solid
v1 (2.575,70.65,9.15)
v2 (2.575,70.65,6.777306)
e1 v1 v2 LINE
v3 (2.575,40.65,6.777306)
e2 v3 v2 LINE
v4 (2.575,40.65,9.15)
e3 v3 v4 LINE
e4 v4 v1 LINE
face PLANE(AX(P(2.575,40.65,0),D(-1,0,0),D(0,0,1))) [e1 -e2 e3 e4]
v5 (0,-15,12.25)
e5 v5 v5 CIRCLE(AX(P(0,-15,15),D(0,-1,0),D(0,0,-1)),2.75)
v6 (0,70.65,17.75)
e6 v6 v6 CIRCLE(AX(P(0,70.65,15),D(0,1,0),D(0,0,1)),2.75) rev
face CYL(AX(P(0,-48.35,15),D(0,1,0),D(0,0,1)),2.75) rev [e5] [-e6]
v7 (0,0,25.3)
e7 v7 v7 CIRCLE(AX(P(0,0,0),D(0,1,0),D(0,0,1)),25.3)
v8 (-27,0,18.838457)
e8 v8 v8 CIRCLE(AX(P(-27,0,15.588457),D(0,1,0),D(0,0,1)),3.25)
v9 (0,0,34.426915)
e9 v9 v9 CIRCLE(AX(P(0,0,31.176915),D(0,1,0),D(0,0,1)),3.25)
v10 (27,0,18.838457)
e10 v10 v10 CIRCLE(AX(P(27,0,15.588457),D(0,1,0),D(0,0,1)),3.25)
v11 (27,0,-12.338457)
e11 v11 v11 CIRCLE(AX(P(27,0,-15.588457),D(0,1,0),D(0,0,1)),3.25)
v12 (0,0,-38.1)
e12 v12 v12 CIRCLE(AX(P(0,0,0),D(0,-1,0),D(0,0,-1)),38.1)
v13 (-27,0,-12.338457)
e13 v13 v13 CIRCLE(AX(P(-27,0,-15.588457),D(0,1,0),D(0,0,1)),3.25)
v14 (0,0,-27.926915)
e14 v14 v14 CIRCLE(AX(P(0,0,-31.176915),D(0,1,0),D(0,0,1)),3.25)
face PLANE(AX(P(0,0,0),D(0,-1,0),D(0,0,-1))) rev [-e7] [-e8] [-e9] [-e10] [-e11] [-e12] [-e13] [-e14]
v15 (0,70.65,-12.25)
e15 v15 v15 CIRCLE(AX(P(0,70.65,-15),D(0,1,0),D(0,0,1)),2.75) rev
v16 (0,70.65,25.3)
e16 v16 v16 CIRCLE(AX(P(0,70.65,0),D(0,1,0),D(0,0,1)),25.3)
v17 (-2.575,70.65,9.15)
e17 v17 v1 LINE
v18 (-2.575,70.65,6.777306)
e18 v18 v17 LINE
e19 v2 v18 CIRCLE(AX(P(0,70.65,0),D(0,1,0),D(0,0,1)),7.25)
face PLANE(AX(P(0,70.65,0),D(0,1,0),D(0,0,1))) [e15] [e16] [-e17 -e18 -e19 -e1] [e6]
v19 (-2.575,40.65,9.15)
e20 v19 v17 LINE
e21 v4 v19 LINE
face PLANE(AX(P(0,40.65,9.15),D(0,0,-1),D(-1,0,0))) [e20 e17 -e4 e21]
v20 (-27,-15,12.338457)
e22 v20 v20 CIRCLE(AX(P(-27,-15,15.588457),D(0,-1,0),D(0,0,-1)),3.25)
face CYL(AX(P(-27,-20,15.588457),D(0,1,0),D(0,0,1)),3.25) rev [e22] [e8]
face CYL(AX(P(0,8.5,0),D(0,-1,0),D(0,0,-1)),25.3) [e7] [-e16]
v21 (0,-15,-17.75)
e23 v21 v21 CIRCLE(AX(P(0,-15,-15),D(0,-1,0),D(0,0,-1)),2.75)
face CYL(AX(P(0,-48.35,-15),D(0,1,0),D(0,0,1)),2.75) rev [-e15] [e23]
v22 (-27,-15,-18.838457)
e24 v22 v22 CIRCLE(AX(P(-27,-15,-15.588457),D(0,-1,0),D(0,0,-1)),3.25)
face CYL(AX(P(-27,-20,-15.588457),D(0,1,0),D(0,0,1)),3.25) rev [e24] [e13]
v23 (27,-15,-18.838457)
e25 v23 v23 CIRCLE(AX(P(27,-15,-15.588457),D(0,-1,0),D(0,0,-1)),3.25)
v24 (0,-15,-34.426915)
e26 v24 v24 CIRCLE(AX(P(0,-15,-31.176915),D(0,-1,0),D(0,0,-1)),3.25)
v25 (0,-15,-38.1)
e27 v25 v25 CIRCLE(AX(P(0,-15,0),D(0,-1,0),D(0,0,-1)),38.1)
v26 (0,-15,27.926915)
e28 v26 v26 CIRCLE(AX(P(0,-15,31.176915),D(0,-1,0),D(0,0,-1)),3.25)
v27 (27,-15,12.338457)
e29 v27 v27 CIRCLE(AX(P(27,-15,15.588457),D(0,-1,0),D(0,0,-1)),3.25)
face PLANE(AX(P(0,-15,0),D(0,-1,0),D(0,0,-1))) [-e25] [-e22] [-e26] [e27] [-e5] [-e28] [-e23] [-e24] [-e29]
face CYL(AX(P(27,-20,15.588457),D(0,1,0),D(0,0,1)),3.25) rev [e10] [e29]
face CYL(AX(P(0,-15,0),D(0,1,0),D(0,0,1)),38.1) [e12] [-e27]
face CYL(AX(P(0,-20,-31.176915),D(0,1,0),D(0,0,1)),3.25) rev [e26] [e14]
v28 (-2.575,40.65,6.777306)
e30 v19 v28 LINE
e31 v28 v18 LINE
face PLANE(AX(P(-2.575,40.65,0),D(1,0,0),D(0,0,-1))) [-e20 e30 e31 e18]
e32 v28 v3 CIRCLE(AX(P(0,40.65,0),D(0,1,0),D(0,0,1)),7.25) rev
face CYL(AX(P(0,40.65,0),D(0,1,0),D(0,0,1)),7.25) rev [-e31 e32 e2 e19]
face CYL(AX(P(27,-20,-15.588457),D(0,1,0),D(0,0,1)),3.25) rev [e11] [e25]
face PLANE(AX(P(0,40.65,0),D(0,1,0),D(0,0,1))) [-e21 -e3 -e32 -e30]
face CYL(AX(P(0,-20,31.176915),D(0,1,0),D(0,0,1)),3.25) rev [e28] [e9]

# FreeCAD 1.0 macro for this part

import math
import FreeCAD as App
import Part
import Sketcher
from FreeCAD import Vector

doc = App.newDocument("Part")
params = doc.addObject("Spreadsheet::Sheet", "Params")
for row, (alias, value) in enumerate([
    ("sketch1_diameter", "50.6 mm"),
    ("pad1_length", "8.5 mm"),
    ("sketch2_diameter", "50.6 mm"),
    ("pad2_length", "57.15 mm"),
    ("sketch3_diameter", "50.6 mm"),
    ("pad3_length", "15 mm"),
    ("sketch4_radius", "7.25 mm"),
    ("sketch4_width", "5.15 mm"),
    ("pocket1_length", "115 mm"),
    ("sketch5_diameter", "76.2 mm"),
    ("pad4_length", "15 mm"),
    ("sketch6_radius", "3.25 mm"),
    ("pocket2_length", "20 mm"),
    ("sketch7_diameter", "5.5 mm"),
    ("pocket3_length", "129 mm"),
    ("sketch8_radius", "7.25 mm"),
    ("sketch8_width", "5.15 mm"),
    ("pad5_length", "93 mm"),
    ("sketch9_radius", "7.25 mm"),
    ("sketch9_width", "5.15 mm"),
    ("pocket4_length", "40 mm"),
    ("sketch10_diameter", "50.6 mm"),
    ("pocket5_length", "10 mm"),
], start=1):
    params.set(f"A{row}", alias)
    params.set(f"B{row}", "=" + value)
    params.setAlias(f"B{row}", alias)

body = doc.addObject("PartDesign::Body", "Body")

# Sketch on XZ plane
sketch1 = doc.addObject("Sketcher::SketchObject", "Sketch")
body.addObject(sketch1)
sketch1.AttachmentSupport = (doc.XZ_Plane, [""])
sketch1.MapMode = "FlatFace"
sketch1.addGeometry(Part.Circle(Vector(0, 0, 0), Vector(0, 0, 1), 25), False)
sketch1.addConstraint([
    Sketcher.Constraint("Coincident", 0, 3, -1, 1),
    Sketcher.Constraint("Diameter", 0, 50.6),
])
sketch1.setExpression("Constraints[1]", "Params.sketch1_diameter")
pad1 = doc.addObject("PartDesign::Pad", "Pad")
body.addObject(pad1)
pad1.Profile = sketch1
pad1.setExpression("Length", "Params.pad1_length")
pad1.Reversed = True

# Sketch on XZ plane
sketch2 = doc.addObject("Sketcher::SketchObject", "Sketch001")
body.addObject(sketch2)
sketch2.AttachmentSupport = (doc.XZ_Plane, [""])
sketch2.MapMode = "FlatFace"
sketch2.AttachmentOffset = App.Placement(Vector(0, 0, -8.5), App.Rotation())
sketch2.addGeometry(Part.Circle(Vector(0, 0, 0), Vector(0, 0, 1), 25), False)
sketch2.addConstraint([
    Sketcher.Constraint("Coincident", 0, 3, -1, 1),
    Sketcher.Constraint("Diameter", 0, 50.6),
])
sketch2.setExpression("Constraints[1]", "Params.sketch2_diameter")
pad2 = doc.addObject("PartDesign::Pad", "Pad001")
body.addObject(pad2)
pad2.Profile = sketch2
pad2.setExpression("Length", "Params.pad2_length")
pad2.Reversed = True

# Sketch on XZ plane
sketch3 = doc.addObject("Sketcher::SketchObject", "Sketch002")
body.addObject(sketch3)
sketch3.AttachmentSupport = (doc.XZ_Plane, [""])
sketch3.MapMode = "FlatFace"
sketch3.AttachmentOffset = App.Placement(Vector(0, 0, -65.65), App.Rotation())
sketch3.addGeometry(Part.Circle(Vector(0, 0, 0), Vector(0, 0, 1), 25), False)
sketch3.addConstraint([
    Sketcher.Constraint("Coincident", 0, 3, -1, 1),
    Sketcher.Constraint("Diameter", 0, 50.6),
])
sketch3.setExpression("Constraints[1]", "Params.sketch3_diameter")
pad3 = doc.addObject("PartDesign::Pad", "Pad002")
body.addObject(pad3)
pad3.Profile = sketch3
pad3.setExpression("Length", "Params.pad3_length")
pad3.Reversed = True

# Sketch on XZ plane
sketch4 = doc.addObject("Sketcher::SketchObject", "Sketch003")
body.addObject(sketch4)
sketch4.AttachmentSupport = (doc.XZ_Plane, [""])
sketch4.MapMode = "FlatFace"
sketch4.addGeometry([
    Part.ArcOfCircle(Part.Circle(Vector(0, 0, 0), Vector(0, 0, 1), 7.2), math.radians(111), math.radians(360)),  # 0
    Part.ArcOfCircle(Part.Circle(Vector(0, 0, 0), Vector(0, 0, 1), 7.3), math.radians(0), math.radians(69)),  # 1
    Part.LineSegment(Vector(2.6, 6.8, 0), Vector(2.6, 9.2, 0)),  # 2
    Part.LineSegment(Vector(2.6, 9.2, 0), Vector(-2.6, 9.2, 0)),  # 3
    Part.LineSegment(Vector(-2.6, 9.2, 0), Vector(-2.6, 6.8, 0)),  # 4
], False)
sketch4.addConstraint([
    Sketcher.Constraint("Tangent", 0, 2, 1, 1),
    Sketcher.Constraint("Coincident", 1, 2, 2, 1),
    Sketcher.Constraint("Coincident", 2, 2, 3, 1),
    Sketcher.Constraint("Coincident", 3, 2, 4, 1),
    Sketcher.Constraint("Coincident", 4, 2, 0, 1),
    Sketcher.Constraint("Vertical", 2),
    Sketcher.Constraint("Horizontal", 3),
    Sketcher.Constraint("Vertical", 4),
    Sketcher.Constraint("Coincident", 0, 3, -1, 1),
    Sketcher.Constraint("Equal", 0, 1),
    Sketcher.Constraint("PointOnObject", 0, 2, -1),
    Sketcher.Constraint("Horizontal", 1, 2, 4, 2),
    Sketcher.Constraint("Radius", 0, 7.25),
    Sketcher.Constraint("DistanceX", 3, 2, 3, 1, 5.15),
    Sketcher.Constraint("DistanceY", -1, 1, 2, 2, 9.15),
])
sketch4.setExpression("Constraints[12]", "Params.sketch4_radius")
sketch4.setExpression("Constraints[13]", "Params.sketch4_width")
pocket1 = doc.addObject("PartDesign::Pocket", "Pocket")
body.addObject(pocket1)
pocket1.Profile = sketch4
pocket1.setExpression("Length", "Params.pocket1_length")

# Sketch on XZ plane
sketch5 = doc.addObject("Sketcher::SketchObject", "Sketch004")
body.addObject(sketch5)
sketch5.AttachmentSupport = (doc.XZ_Plane, [""])
sketch5.MapMode = "FlatFace"
sketch5.addGeometry(Part.Circle(Vector(0, 0, 0), Vector(0, 0, 1), 38), False)
sketch5.addConstraint([
    Sketcher.Constraint("Coincident", 0, 3, -1, 1),
    Sketcher.Constraint("Diameter", 0, 76.2),
])
sketch5.setExpression("Constraints[1]", "Params.sketch5_diameter")
pad4 = doc.addObject("PartDesign::Pad", "Pad003")
body.addObject(pad4)
pad4.Profile = sketch5
pad4.setExpression("Length", "Params.pad4_length")

# Sketch on XZ plane
sketch6 = doc.addObject("Sketcher::SketchObject", "Sketch005")
body.addObject(sketch6)
sketch6.AttachmentSupport = (doc.XZ_Plane, [""])
sketch6.MapMode = "FlatFace"
sketch6.addGeometry([
    Part.ArcOfCircle(Part.Circle(Vector(-27, -15.6, 0), Vector(0, 0, 1), 3.3), math.radians(-30), math.radians(0)),  # 0
    Part.ArcOfCircle(Part.Circle(Vector(-27, -15.6, 0), Vector(0, 0, 1), 3.2), math.radians(90), math.radians(330)),  # 1
    Part.ArcOfCircle(Part.Circle(Vector(-27, -15.6, 0), Vector(0, 0, 1), 3.2), math.radians(0), math.radians(90)),  # 2
    Part.ArcOfCircle(Part.Circle(Vector(0, -31.2, 0), Vector(0, 0, 1), 3.2), math.radians(30), math.radians(150)),  # 3
    Part.ArcOfCircle(Part.Circle(Vector(0, -31.2, 0), Vector(0, 0, 1), 3.3), math.radians(0), math.radians(30)),  # 4
    Part.ArcOfCircle(Part.Circle(Vector(0, -31.2, 0), Vector(0, 0, 1), 3.2), math.radians(150), math.radians(360)),  # 5
    Part.ArcOfCircle(Part.Circle(Vector(27, -15.6, 0), Vector(0, 0, 1), 3.2), math.radians(-150), math.radians(0)),  # 6
    Part.ArcOfCircle(Part.Circle(Vector(27, -15.6, 0), Vector(0, 0, 1), 3.2), math.radians(90), math.radians(210)),  # 7
    Part.ArcOfCircle(Part.Circle(Vector(27, -15.6, 0), Vector(0, 0, 1), 3.2), math.radians(0), math.radians(90)),  # 8
    Part.ArcOfCircle(Part.Circle(Vector(27, 15.6, 0), Vector(0, 0, 1), 3.2), math.radians(-90), math.radians(0)),  # 9
    Part.ArcOfCircle(Part.Circle(Vector(27, 15.6, 0), Vector(0, 0, 1), 3.2), math.radians(150), math.radians(270)),  # 10
    Part.ArcOfCircle(Part.Circle(Vector(27, 15.6, 0), Vector(0, 0, 1), 3.2), math.radians(0), math.radians(150)),  # 11
    Part.ArcOfCircle(Part.Circle(Vector(0, 31.2, 0), Vector(0, 0, 1), 3.2), math.radians(-150), math.radians(-30)),  # 12
    Part.ArcOfCircle(Part.Circle(Vector(0, 31.2, 0), Vector(0, 0, 1), 3.2), math.radians(0), math.radians(210)),  # 13
    Part.ArcOfCircle(Part.Circle(Vector(0, 31.2, 0), Vector(0, 0, 1), 3.3), math.radians(-30), math.radians(0)),  # 14
    Part.ArcOfCircle(Part.Circle(Vector(-27, 15.6, 0), Vector(0, 0, 1), 3.2), math.radians(-90), math.radians(0)),  # 15
    Part.ArcOfCircle(Part.Circle(Vector(-27, 15.6, 0), Vector(0, 0, 1), 3.2), math.radians(30), math.radians(270)),  # 16
    Part.ArcOfCircle(Part.Circle(Vector(-27, 15.6, 0), Vector(0, 0, 1), 3.3), math.radians(0), math.radians(30)),  # 17
], False)
sketch6.addConstraint([
    Sketcher.Constraint("Tangent", 0, 1, 1, 2),
    Sketcher.Constraint("Tangent", 1, 1, 2, 2),
    Sketcher.Constraint("Tangent", 2, 1, 0, 2),
    Sketcher.Constraint("Tangent", 3, 1, 4, 2),
    Sketcher.Constraint("Tangent", 4, 1, 5, 2),
    Sketcher.Constraint("Tangent", 5, 1, 3, 2),
    Sketcher.Constraint("Tangent", 6, 1, 7, 2),
    Sketcher.Constraint("Tangent", 7, 1, 8, 2),
    Sketcher.Constraint("Tangent", 8, 1, 6, 2),
    Sketcher.Constraint("Tangent", 9, 1, 10, 2),
    Sketcher.Constraint("Tangent", 10, 1, 11, 2),
    Sketcher.Constraint("Tangent", 11, 1, 9, 2),
    Sketcher.Constraint("Tangent", 12, 1, 13, 2),
    Sketcher.Constraint("Tangent", 13, 1, 14, 2),
    Sketcher.Constraint("Tangent", 14, 1, 12, 2),
    Sketcher.Constraint("Tangent", 15, 1, 16, 2),
    Sketcher.Constraint("Tangent", 16, 1, 17, 2),
    Sketcher.Constraint("Tangent", 17, 1, 15, 2),
    Sketcher.Constraint("Equal", 2, 3),
    Sketcher.Constraint("Equal", 5, 6),
    Sketcher.Constraint("Equal", 8, 9),
    Sketcher.Constraint("Equal", 11, 12),
    Sketcher.Constraint("Equal", 14, 15),
    Sketcher.Constraint("Symmetric", 0, 3, 9, 3, -1, 1),
    Sketcher.Constraint("Symmetric", 3, 3, 12, 3, -1, 1),
    Sketcher.Constraint("Symmetric", 6, 3, 15, 3, -1, 1),
    Sketcher.Constraint("Symmetric", 0, 3, 6, 3, -2),
    Sketcher.Constraint("Symmetric", 3, 1, 5, 1, -2),
    Sketcher.Constraint("Horizontal", 8, 3, 2, 1),
    Sketcher.Constraint("Horizontal", 5, 3, 4, 1),
    Sketcher.Constraint("Horizontal", 0, 1, 6, 1),
    Sketcher.Constraint("Horizontal", 2, 1, 8, 1),
    Sketcher.Constraint("Horizontal", 17, 3, 11, 1),
    Sketcher.Constraint("Horizontal", 14, 3, 13, 1),
    Sketcher.Constraint("Horizontal", 12, 1, 14, 1),
    Sketcher.Constraint("Horizontal", 10, 1, 16, 1),
    Sketcher.Constraint("Horizontal", 11, 1, 17, 1),
    Sketcher.Constraint("Vertical", 17, 3, 1, 1),
    Sketcher.Constraint("Vertical", 11, 3, 7, 1),
    Sketcher.Constraint("Vertical", 7, 1, 9, 1),
    Sketcher.Constraint("Vertical", 6, 1, 10, 1),
    Sketcher.Constraint("Vertical", 5, 1, 12, 1),
    Sketcher.Constraint("Vertical", 1, 1, 15, 1),
    Sketcher.Constraint("Radius", 0, 3.25),
    Sketcher.Constraint("DistanceX", 0, 3, -1, 1, 27.0),
    Sketcher.Constraint("DistanceY", 0, 1, 1, 3, 1.625),
    Sketcher.Constraint("DistanceY", 3, 3, 3, 1, 1.625),
    Sketcher.Constraint("DistanceY", 3, 3, 9, 3, 46.765372),
    Sketcher.Constraint("DistanceY", 0, 3, -1, 1, 15.588457),
])
sketch6.setExpression("Constraints[43]", "Params.sketch6_radius")
pocket2 = doc.addObject("PartDesign::Pocket", "Pocket001")
body.addObject(pocket2)
pocket2.Profile = sketch6
pocket2.setExpression("Length", "Params.pocket2_length")
pocket2.Reversed = True

# Sketch on XZ plane
sketch7 = doc.addObject("Sketcher::SketchObject", "Sketch006")
body.addObject(sketch7)
sketch7.AttachmentSupport = (doc.XZ_Plane, [""])
sketch7.MapMode = "FlatFace"
sketch7.AttachmentOffset = App.Placement(Vector(0, 0, -80.65), App.Rotation())
sketch7.addGeometry([
    Part.Circle(Vector(0, -15, 0), Vector(0, 0, 1), 2.8),
    Part.Circle(Vector(0, 15, 0), Vector(0, 0, 1), 2.8),
], False)
sketch7.addConstraint([
    Sketcher.Constraint("Equal", 0, 1),
    Sketcher.Constraint("Symmetric", 0, 3, 1, 3, -1, 1),
    Sketcher.Constraint("PointOnObject", 0, 3, -2),
    Sketcher.Constraint("Diameter", 0, 5.5),
    Sketcher.Constraint("DistanceY", 0, 3, -1, 1, 15.0),
])
sketch7.setExpression("Constraints[3]", "Params.sketch7_diameter")
pocket3 = doc.addObject("PartDesign::Pocket", "Pocket002")
body.addObject(pocket3)
pocket3.Profile = sketch7
pocket3.setExpression("Length", "Params.pocket3_length")
pocket3.Reversed = True

# Sketch on XZ plane
sketch8 = doc.addObject("Sketcher::SketchObject", "Sketch007")
body.addObject(sketch8)
sketch8.AttachmentSupport = (doc.XZ_Plane, [""])
sketch8.MapMode = "FlatFace"
sketch8.AttachmentOffset = App.Placement(Vector(0, 0, 12.35), App.Rotation())
sketch8.addGeometry([
    Part.ArcOfCircle(Part.Circle(Vector(0, 0, 0), Vector(0, 0, 1), 7.2), math.radians(111), math.radians(360)),  # 0
    Part.LineSegment(Vector(-2.6, 6.8, 0), Vector(-2.6, 9.2, 0)),  # 1
    Part.LineSegment(Vector(-2.6, 9.2, 0), Vector(2.6, 9.2, 0)),  # 2
    Part.LineSegment(Vector(2.6, 9.2, 0), Vector(2.6, 6.8, 0)),  # 3
    Part.ArcOfCircle(Part.Circle(Vector(0, 0, 0), Vector(0, 0, 1), 7.3), math.radians(0), math.radians(69)),  # 4
], False)
sketch8.addConstraint([
    Sketcher.Constraint("Coincident", 0, 1, 1, 1),
    Sketcher.Constraint("Coincident", 1, 2, 2, 1),
    Sketcher.Constraint("Coincident", 2, 2, 3, 1),
    Sketcher.Constraint("Coincident", 3, 2, 4, 2),
    Sketcher.Constraint("Tangent", 4, 1, 0, 2),
    Sketcher.Constraint("Vertical", 1),
    Sketcher.Constraint("Horizontal", 2),
    Sketcher.Constraint("Vertical", 3),
    Sketcher.Constraint("Coincident", 0, 3, -1, 1),
    Sketcher.Constraint("Equal", 0, 4),
    Sketcher.Constraint("PointOnObject", 4, 1, -1),
    Sketcher.Constraint("Horizontal", 0, 1, 3, 2),
    Sketcher.Constraint("Radius", 0, 7.25),
    Sketcher.Constraint("DistanceX", 2, 1, 2, 2, 5.15),
    Sketcher.Constraint("DistanceY", -1, 1, 1, 2, 9.15),
])
sketch8.setExpression("Constraints[12]", "Params.sketch8_radius")
sketch8.setExpression("Constraints[13]", "Params.sketch8_width")
pad5 = doc.addObject("PartDesign::Pad", "Pad004")
body.addObject(pad5)
pad5.Profile = sketch8
pad5.setExpression("Length", "Params.pad5_length")
pad5.Reversed = True

# Sketch on XZ plane
sketch9 = doc.addObject("Sketcher::SketchObject", "Sketch008")
body.addObject(sketch9)
sketch9.AttachmentSupport = (doc.XZ_Plane, [""])
sketch9.MapMode = "FlatFace"
sketch9.AttachmentOffset = App.Placement(Vector(0, 0, -80.65), App.Rotation())
sketch9.addGeometry([
    Part.ArcOfCircle(Part.Circle(Vector(0, 0, 0), Vector(0, 0, 1), 7.2), math.radians(111), math.radians(360)),  # 0
    Part.LineSegment(Vector(-2.6, 6.8, 0), Vector(-2.6, 9.2, 0)),  # 1
    Part.LineSegment(Vector(-2.6, 9.2, 0), Vector(2.6, 9.2, 0)),  # 2
    Part.LineSegment(Vector(2.6, 9.2, 0), Vector(2.6, 6.8, 0)),  # 3
    Part.ArcOfCircle(Part.Circle(Vector(0, 0, 0), Vector(0, 0, 1), 7.3), math.radians(0), math.radians(69)),  # 4
], False)
sketch9.addConstraint([
    Sketcher.Constraint("Coincident", 0, 1, 1, 1),
    Sketcher.Constraint("Coincident", 1, 2, 2, 1),
    Sketcher.Constraint("Coincident", 2, 2, 3, 1),
    Sketcher.Constraint("Coincident", 3, 2, 4, 2),
    Sketcher.Constraint("Tangent", 4, 1, 0, 2),
    Sketcher.Constraint("Vertical", 1),
    Sketcher.Constraint("Horizontal", 2),
    Sketcher.Constraint("Vertical", 3),
    Sketcher.Constraint("Coincident", 0, 3, -1, 1),
    Sketcher.Constraint("Equal", 0, 4),
    Sketcher.Constraint("PointOnObject", 4, 1, -1),
    Sketcher.Constraint("Horizontal", 0, 1, 3, 2),
    Sketcher.Constraint("Radius", 0, 7.25),
    Sketcher.Constraint("DistanceX", 2, 1, 2, 2, 5.15),
    Sketcher.Constraint("DistanceY", -1, 1, 1, 2, 9.15),
])
sketch9.setExpression("Constraints[12]", "Params.sketch9_radius")
sketch9.setExpression("Constraints[13]", "Params.sketch9_width")
pocket4 = doc.addObject("PartDesign::Pocket", "Pocket003")
body.addObject(pocket4)
pocket4.Profile = sketch9
pocket4.setExpression("Length", "Params.pocket4_length")
pocket4.Reversed = True

# Sketch on XZ plane
sketch10 = doc.addObject("Sketcher::SketchObject", "Sketch009")
body.addObject(sketch10)
sketch10.AttachmentSupport = (doc.XZ_Plane, [""])
sketch10.MapMode = "FlatFace"
sketch10.AttachmentOffset = App.Placement(Vector(0, 0, -70.65), App.Rotation())
sketch10.addGeometry(Part.Circle(Vector(0, 0, 0), Vector(0, 0, 1), 25), False)
sketch10.addConstraint([
    Sketcher.Constraint("Coincident", 0, 3, -1, 1),
    Sketcher.Constraint("Diameter", 0, 50.6),
])
sketch10.setExpression("Constraints[1]", "Params.sketch10_diameter")
pocket5 = doc.addObject("PartDesign::Pocket", "Pocket004")
body.addObject(pocket5)
pocket5.Profile = sketch10
pocket5.setExpression("Length", "Params.pocket5_length")

doc.recompute()
